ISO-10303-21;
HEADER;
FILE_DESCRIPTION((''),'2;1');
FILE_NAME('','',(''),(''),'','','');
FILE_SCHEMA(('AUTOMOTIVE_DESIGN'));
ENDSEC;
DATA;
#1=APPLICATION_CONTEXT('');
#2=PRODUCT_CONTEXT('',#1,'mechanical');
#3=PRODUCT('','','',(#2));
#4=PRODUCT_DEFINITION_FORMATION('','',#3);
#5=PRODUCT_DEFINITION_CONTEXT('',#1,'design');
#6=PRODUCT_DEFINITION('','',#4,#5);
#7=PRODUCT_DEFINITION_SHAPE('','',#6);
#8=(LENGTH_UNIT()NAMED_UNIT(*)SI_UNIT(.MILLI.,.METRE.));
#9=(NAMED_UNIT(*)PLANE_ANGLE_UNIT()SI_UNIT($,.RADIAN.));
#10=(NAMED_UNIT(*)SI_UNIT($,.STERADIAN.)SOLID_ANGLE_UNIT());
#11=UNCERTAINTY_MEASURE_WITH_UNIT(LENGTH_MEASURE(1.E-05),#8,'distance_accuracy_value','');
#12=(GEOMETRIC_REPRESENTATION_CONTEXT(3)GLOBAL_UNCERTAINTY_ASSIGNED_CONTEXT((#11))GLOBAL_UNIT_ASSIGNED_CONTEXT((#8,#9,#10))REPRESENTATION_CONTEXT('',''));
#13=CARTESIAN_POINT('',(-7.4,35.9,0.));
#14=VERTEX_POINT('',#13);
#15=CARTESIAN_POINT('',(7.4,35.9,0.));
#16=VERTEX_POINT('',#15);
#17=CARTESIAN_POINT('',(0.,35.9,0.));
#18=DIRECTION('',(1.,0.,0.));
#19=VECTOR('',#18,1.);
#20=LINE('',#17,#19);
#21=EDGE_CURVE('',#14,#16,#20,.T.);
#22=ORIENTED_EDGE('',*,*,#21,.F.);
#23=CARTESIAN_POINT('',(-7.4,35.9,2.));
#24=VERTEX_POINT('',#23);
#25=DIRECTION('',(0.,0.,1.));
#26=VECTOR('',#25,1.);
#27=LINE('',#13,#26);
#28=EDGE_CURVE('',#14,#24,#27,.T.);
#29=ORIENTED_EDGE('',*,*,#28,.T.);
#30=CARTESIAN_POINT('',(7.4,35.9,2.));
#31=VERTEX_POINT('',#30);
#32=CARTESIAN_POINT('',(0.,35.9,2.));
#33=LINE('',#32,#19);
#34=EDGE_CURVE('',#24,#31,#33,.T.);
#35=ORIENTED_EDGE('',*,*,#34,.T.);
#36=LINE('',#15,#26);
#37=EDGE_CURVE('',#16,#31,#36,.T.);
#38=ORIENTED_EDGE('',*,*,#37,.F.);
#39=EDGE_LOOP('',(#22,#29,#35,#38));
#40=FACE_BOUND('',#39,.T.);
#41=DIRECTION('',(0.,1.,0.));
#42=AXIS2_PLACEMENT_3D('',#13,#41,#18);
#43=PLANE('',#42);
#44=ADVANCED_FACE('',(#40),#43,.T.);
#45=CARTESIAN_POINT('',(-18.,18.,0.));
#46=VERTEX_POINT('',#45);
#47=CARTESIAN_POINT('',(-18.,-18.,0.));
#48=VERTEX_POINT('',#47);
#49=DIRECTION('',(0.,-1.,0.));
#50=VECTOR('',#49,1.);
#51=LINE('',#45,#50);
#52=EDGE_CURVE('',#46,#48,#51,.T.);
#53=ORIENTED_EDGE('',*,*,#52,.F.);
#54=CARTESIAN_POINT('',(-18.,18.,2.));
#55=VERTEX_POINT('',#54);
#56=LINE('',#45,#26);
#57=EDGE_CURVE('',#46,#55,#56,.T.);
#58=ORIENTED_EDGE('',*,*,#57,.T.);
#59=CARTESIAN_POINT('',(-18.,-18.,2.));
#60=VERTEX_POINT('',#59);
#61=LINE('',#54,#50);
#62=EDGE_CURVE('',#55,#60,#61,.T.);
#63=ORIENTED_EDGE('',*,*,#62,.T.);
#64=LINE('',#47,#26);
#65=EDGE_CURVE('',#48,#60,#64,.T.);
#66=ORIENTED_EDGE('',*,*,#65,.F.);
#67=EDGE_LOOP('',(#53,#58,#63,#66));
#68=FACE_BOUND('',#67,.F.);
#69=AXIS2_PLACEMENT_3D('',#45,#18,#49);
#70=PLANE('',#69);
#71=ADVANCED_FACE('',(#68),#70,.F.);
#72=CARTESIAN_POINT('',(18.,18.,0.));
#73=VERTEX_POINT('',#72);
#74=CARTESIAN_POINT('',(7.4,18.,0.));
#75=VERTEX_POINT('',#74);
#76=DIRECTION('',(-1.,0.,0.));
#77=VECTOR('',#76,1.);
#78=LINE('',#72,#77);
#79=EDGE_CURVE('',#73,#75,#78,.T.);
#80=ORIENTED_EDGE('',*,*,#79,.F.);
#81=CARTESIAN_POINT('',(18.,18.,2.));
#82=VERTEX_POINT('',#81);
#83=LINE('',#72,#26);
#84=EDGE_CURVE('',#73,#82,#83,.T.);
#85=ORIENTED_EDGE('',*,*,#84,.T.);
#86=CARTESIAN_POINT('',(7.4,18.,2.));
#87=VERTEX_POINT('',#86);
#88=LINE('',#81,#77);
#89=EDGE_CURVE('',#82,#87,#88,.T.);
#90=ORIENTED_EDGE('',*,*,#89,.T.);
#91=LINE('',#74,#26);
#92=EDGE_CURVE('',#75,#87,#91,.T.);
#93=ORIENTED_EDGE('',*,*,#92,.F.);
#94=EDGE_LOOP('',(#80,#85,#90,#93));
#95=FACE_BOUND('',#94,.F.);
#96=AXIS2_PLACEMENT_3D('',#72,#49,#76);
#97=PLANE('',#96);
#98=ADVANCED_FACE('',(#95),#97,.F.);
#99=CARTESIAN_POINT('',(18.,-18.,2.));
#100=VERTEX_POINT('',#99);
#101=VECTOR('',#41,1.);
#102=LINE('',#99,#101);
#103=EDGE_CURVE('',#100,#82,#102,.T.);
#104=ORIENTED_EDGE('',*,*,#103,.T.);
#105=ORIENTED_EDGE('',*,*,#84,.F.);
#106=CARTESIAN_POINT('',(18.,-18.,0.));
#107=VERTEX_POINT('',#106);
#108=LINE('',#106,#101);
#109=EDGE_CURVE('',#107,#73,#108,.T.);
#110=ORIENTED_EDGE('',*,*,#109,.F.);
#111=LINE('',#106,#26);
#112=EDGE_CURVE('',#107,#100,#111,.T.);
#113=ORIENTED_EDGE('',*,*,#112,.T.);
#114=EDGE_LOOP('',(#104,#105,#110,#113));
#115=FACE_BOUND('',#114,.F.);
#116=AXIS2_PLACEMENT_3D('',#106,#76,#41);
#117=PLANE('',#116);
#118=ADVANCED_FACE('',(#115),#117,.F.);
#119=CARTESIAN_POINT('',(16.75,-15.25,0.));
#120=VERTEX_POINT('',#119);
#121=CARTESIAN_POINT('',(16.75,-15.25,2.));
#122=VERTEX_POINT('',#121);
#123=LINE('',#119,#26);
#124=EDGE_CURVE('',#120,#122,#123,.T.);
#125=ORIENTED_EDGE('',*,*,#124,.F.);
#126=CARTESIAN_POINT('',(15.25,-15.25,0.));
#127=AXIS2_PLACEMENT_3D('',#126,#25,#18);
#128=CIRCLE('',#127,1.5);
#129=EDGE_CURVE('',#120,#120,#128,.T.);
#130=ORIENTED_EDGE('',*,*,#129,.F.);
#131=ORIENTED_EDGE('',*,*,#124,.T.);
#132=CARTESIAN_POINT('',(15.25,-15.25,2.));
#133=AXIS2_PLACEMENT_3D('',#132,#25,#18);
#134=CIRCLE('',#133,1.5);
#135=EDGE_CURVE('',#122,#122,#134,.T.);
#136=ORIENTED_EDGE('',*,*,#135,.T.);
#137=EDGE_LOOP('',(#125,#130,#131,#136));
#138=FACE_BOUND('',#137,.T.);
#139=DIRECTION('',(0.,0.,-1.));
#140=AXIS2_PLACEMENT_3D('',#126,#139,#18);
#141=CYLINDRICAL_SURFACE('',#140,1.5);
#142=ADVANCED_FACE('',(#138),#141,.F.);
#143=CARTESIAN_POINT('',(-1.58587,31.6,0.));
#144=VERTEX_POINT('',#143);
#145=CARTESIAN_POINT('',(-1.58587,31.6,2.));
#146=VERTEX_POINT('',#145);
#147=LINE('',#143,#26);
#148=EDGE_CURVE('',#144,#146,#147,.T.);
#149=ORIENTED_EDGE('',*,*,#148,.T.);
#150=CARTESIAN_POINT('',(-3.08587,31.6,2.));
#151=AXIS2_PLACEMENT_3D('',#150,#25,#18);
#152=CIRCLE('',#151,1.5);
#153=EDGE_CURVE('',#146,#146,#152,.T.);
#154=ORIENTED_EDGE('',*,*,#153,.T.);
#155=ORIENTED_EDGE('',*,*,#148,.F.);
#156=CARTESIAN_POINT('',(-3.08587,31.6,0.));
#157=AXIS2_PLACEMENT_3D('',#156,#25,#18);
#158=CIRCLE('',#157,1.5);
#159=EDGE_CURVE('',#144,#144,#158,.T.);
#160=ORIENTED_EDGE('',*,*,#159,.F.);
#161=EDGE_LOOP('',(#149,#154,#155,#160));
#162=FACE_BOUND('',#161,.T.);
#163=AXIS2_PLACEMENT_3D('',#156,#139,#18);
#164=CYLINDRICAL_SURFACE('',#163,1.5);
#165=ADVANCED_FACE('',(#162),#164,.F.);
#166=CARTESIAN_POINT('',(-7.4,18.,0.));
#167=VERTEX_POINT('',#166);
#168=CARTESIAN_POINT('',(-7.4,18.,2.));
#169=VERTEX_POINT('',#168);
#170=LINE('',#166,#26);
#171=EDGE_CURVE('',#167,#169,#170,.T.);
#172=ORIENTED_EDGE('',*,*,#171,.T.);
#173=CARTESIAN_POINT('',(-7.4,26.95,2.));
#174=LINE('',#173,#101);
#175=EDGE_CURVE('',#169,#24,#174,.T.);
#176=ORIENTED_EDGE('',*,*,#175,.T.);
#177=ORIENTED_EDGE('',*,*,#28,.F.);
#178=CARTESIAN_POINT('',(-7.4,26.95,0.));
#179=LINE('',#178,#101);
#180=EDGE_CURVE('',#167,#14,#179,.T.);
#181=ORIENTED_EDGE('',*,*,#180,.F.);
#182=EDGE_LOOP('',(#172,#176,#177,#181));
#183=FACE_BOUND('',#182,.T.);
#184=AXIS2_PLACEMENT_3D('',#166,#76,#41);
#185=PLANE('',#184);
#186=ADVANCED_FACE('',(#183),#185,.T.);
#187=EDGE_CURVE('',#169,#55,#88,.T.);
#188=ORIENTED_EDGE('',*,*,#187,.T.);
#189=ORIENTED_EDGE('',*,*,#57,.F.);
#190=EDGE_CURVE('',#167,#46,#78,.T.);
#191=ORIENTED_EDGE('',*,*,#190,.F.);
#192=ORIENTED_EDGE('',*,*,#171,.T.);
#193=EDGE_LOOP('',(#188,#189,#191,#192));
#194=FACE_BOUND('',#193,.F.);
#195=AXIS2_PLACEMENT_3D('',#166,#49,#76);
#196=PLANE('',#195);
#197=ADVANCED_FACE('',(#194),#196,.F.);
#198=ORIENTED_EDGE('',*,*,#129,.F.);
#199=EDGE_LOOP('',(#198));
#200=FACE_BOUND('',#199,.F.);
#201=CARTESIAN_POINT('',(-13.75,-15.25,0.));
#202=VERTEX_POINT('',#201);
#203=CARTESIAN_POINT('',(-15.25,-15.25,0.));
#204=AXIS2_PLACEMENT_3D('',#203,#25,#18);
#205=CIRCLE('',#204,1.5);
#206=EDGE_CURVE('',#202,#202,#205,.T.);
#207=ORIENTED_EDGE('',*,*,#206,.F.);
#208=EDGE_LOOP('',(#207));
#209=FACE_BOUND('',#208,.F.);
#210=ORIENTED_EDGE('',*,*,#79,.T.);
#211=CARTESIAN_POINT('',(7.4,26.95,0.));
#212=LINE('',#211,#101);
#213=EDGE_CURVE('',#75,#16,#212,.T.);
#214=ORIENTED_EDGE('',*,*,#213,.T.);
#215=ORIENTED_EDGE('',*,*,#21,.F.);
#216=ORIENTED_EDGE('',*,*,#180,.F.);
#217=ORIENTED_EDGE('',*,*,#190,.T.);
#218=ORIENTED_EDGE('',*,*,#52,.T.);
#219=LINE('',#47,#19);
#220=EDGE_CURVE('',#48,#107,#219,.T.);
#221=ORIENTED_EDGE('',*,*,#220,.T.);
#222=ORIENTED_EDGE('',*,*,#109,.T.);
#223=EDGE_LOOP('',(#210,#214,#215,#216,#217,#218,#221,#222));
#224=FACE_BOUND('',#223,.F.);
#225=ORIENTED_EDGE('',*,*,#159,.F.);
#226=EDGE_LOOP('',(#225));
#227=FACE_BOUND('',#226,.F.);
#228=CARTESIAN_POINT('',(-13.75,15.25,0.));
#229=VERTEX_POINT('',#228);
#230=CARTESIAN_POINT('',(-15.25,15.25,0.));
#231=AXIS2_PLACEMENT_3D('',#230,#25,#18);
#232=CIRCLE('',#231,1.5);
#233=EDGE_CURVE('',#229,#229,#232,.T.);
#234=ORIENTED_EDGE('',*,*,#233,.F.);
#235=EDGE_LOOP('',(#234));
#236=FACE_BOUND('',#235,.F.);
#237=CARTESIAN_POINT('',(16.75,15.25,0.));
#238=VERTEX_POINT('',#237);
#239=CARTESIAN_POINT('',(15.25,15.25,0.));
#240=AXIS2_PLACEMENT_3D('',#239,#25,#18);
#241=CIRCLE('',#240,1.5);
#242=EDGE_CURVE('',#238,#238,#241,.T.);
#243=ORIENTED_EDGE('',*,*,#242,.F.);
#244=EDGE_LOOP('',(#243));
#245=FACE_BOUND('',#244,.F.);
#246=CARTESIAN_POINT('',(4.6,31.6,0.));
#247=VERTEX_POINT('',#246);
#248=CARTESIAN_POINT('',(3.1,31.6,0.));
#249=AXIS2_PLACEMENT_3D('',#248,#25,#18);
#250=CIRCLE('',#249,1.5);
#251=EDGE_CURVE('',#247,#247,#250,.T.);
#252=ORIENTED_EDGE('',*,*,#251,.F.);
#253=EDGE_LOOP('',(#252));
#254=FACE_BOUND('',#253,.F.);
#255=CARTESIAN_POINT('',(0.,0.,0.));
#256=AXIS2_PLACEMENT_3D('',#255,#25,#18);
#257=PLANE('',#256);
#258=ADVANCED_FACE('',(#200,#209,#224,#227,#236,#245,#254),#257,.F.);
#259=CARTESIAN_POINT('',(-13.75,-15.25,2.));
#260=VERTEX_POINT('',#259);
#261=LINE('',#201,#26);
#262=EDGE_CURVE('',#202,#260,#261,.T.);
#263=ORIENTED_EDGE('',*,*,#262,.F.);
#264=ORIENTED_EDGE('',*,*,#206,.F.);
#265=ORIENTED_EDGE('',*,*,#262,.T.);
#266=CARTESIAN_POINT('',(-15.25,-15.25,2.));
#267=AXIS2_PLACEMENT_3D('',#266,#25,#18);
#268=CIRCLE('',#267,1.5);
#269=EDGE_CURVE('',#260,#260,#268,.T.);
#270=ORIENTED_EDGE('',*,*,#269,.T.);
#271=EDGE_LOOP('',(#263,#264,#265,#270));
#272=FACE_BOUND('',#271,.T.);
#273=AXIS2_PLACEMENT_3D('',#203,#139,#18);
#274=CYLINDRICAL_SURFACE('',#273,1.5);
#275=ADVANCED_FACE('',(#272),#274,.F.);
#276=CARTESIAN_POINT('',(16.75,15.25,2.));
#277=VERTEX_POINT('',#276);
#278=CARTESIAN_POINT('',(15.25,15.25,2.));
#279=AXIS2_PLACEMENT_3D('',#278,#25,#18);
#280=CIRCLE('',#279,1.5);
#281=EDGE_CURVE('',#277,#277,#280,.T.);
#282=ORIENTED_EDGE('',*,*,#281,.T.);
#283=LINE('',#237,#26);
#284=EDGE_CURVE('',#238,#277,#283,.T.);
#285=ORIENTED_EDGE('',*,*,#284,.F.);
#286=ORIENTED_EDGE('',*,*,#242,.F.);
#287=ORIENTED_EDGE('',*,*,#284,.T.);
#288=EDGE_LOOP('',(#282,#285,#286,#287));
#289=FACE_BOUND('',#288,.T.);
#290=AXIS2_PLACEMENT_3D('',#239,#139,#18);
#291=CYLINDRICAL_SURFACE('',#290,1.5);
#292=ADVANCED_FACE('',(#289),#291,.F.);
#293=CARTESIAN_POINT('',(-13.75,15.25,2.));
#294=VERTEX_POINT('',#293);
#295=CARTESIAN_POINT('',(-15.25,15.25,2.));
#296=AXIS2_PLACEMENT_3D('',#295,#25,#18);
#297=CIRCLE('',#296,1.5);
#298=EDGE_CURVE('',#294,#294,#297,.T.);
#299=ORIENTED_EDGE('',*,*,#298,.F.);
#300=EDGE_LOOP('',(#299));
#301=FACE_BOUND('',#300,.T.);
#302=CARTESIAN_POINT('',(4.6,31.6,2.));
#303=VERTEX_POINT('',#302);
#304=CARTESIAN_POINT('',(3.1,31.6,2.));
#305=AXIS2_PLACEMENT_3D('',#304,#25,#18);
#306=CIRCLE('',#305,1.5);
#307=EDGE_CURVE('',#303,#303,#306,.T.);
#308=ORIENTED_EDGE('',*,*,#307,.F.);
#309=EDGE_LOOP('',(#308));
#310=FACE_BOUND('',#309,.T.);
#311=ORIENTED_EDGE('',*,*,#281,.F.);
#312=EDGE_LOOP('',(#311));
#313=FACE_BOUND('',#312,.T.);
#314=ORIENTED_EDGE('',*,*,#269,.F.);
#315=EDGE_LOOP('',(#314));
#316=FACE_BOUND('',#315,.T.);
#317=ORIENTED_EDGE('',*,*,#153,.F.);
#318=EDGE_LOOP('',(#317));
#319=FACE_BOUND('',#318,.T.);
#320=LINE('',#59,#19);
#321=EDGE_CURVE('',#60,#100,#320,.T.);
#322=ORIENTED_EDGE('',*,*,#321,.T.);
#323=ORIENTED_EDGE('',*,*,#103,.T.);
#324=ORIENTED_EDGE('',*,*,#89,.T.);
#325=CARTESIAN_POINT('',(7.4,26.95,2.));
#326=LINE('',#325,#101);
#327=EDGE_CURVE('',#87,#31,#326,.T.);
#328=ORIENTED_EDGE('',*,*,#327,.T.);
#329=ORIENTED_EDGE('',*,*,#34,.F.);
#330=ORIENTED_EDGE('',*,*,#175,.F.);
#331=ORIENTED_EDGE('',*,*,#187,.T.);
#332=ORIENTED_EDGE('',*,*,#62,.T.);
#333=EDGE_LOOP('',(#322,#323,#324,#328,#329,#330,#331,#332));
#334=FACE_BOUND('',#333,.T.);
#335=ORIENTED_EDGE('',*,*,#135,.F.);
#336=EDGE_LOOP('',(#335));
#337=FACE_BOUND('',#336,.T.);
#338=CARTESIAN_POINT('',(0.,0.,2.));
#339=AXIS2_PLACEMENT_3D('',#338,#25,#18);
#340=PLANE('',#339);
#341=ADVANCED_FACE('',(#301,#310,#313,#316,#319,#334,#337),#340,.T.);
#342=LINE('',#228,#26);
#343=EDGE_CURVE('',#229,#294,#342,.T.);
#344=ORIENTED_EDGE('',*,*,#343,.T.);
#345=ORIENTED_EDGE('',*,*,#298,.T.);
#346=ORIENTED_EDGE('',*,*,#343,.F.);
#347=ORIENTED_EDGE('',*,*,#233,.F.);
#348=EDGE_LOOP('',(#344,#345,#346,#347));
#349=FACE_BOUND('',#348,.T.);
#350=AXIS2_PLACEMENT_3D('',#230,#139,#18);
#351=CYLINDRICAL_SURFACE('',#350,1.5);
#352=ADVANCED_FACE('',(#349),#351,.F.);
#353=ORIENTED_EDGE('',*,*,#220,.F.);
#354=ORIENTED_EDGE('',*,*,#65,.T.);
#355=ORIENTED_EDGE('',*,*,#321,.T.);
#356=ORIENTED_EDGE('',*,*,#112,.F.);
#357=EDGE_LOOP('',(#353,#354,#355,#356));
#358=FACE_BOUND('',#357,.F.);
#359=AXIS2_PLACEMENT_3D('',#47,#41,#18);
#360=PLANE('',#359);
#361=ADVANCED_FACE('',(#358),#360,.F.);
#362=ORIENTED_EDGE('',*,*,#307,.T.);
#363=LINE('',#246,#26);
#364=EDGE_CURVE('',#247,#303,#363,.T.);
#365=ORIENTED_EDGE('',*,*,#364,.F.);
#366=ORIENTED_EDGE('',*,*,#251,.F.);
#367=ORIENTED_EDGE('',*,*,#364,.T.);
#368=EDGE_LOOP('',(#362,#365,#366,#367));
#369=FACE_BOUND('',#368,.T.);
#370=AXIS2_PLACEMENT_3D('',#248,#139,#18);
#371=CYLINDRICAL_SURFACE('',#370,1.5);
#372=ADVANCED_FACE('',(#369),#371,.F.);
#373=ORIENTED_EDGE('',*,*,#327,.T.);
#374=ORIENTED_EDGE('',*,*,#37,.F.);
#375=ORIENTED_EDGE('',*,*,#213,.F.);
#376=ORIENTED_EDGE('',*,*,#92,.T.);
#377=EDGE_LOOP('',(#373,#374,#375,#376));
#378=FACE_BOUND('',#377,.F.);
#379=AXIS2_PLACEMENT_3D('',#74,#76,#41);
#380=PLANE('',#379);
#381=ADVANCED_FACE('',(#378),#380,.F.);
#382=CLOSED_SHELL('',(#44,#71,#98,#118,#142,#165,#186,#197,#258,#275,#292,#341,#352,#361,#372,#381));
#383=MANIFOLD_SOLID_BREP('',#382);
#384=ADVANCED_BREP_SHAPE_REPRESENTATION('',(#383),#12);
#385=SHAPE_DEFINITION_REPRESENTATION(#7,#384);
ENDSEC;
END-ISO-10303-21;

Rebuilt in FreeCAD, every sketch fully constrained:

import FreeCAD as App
import Part
import Sketcher

doc = App.newDocument("Part")
params = doc.addObject("Spreadsheet::Sheet", "Params")
for row, (alias, value) in enumerate([
    ("sketch1_diameter", "3 mm"),
    ("sketch1_width", "36 mm"),
    ("sketch1_width2", "10.6 mm"),
    ("sketch1_height", "17.9 mm"),
    ("pad1_length", "2 mm"),
], start=1):
    params.set(f"A{row}", alias)
    params.set(f"B{row}", "=" + value)
    params.setAlias(f"B{row}", alias)

body = doc.addObject("PartDesign::Body", "Body")

# Sketch on XY plane
sketch1 = body.newObject("Sketcher::SketchObject", "Sketch")
sketch1.AttachmentSupport = (doc.getObject("XY_Plane"), [""])
sketch1.MapMode = "FlatFace"
sketch1.addGeometry(Part.LineSegment(App.Vector(-18, 18, 0), App.Vector(-18, -18, 0)), False)
sketch1.addGeometry(Part.LineSegment(App.Vector(-18, -18, 0), App.Vector(18, -18, 0)), False)
sketch1.addGeometry(Part.LineSegment(App.Vector(18, -18, 0), App.Vector(18, 18, 0)), False)
sketch1.addGeometry(Part.LineSegment(App.Vector(18, 18, 0), App.Vector(7.4, 18, 0)), False)
sketch1.addGeometry(Part.LineSegment(App.Vector(7.4, 18, 0), App.Vector(7.4, 35.9, 0)), False)
sketch1.addGeometry(Part.LineSegment(App.Vector(7.4, 35.9, 0), App.Vector(-7.4, 35.9, 0)), False)
sketch1.addGeometry(Part.LineSegment(App.Vector(-7.4, 35.9, 0), App.Vector(-7.4, 18, 0)), False)
sketch1.addGeometry(Part.LineSegment(App.Vector(-7.4, 18, 0), App.Vector(-18, 18, 0)), False)
sketch1.addGeometry(Part.Circle(App.Vector(-15.2, -15.2, 0), App.Vector(0, 0, 1), 1.5), False)
sketch1.addGeometry(Part.Circle(App.Vector(15.2, -15.2, 0), App.Vector(0, 0, 1), 1.5), False)
sketch1.addGeometry(Part.Circle(App.Vector(-15.2, 15.2, 0), App.Vector(0, 0, 1), 1.5), False)
sketch1.addGeometry(Part.Circle(App.Vector(-3.1, 31.6, 0), App.Vector(0, 0, 1), 1.5), False)
sketch1.addGeometry(Part.Circle(App.Vector(15.2, 15.2, 0), App.Vector(0, 0, 1), 1.5), False)
sketch1.addGeometry(Part.Circle(App.Vector(3.1, 31.6, 0), App.Vector(0, 0, 1), 1.5), False)
sketch1.addConstraint(Sketcher.Constraint("Coincident", 0, 2, 1, 1))
sketch1.addConstraint(Sketcher.Constraint("Coincident", 1, 2, 2, 1))
sketch1.addConstraint(Sketcher.Constraint("Coincident", 2, 2, 3, 1))
sketch1.addConstraint(Sketcher.Constraint("Coincident", 3, 2, 4, 1))
sketch1.addConstraint(Sketcher.Constraint("Coincident", 4, 2, 5, 1))
sketch1.addConstraint(Sketcher.Constraint("Coincident", 5, 2, 6, 1))
sketch1.addConstraint(Sketcher.Constraint("Coincident", 6, 2, 7, 1))
sketch1.addConstraint(Sketcher.Constraint("Coincident", 7, 2, 0, 1))
sketch1.addConstraint(Sketcher.Constraint("Vertical", 0))
sketch1.addConstraint(Sketcher.Constraint("Horizontal", 1))
sketch1.addConstraint(Sketcher.Constraint("Vertical", 2))
sketch1.addConstraint(Sketcher.Constraint("Horizontal", 3))
sketch1.addConstraint(Sketcher.Constraint("Vertical", 4))
sketch1.addConstraint(Sketcher.Constraint("Horizontal", 5))
sketch1.addConstraint(Sketcher.Constraint("Vertical", 6))
sketch1.addConstraint(Sketcher.Constraint("Horizontal", 7))
sketch1.addConstraint(Sketcher.Constraint("Equal", 8, 9))
sketch1.addConstraint(Sketcher.Constraint("Equal", 9, 10))
sketch1.addConstraint(Sketcher.Constraint("Equal", 10, 11))
sketch1.addConstraint(Sketcher.Constraint("Equal", 11, 12))
sketch1.addConstraint(Sketcher.Constraint("Equal", 12, 13))
sketch1.addConstraint(Sketcher.Constraint("Symmetric", 9, 3, 10, 3, -1, 1))
sketch1.addConstraint(Sketcher.Constraint("Symmetric", 8, 3, 12, 3, -1, 1))
sketch1.addConstraint(Sketcher.Constraint("Symmetric", 0, 2, 2, 2, -1, 1))
sketch1.addConstraint(Sketcher.Constraint("Symmetric", 8, 3, 9, 3, -2))
sketch1.addConstraint(Sketcher.Constraint("Symmetric", 3, 2, 6, 2, -2))
sketch1.addConstraint(Sketcher.Constraint("Horizontal", 11, 3, 13, 3))
sketch1.addConstraint(Sketcher.Constraint("Equal", 1, 0))
sketch1.addConstraint(Sketcher.Constraint("Diameter", 8, 3.0))
sketch1.addConstraint(Sketcher.Constraint("DistanceX", 1, 1, 1, 2, 36.0))
sketch1.addConstraint(Sketcher.Constraint("DistanceX", 3, 2, 3, 1, 10.6))
sketch1.addConstraint(Sketcher.Constraint("DistanceY", 4, 1, 4, 2, 17.9))
sketch1.addConstraint(Sketcher.Constraint("DistanceY", -1, 1, 11, 3, 31.6))
sketch1.addConstraint(Sketcher.Constraint("DistanceX", -1, 1, 13, 3, 3.1))
sketch1.addConstraint(Sketcher.Constraint("DistanceX", 8, 3, 9, 3, 30.5))
sketch1.addConstraint(Sketcher.Constraint("DistanceY", 8, 3, 10, 3, 30.5))
sketch1.addConstraint(Sketcher.Constraint("DistanceX", 11, 3, -1, 1, 3.08587))
sketch1.setExpression("Constraints[28]", "Params.sketch1_diameter")
sketch1.setExpression("Constraints[29]", "Params.sketch1_width")
sketch1.setExpression("Constraints[30]", "Params.sketch1_width2")
sketch1.setExpression("Constraints[31]", "Params.sketch1_height")
pad1 = body.newObject("PartDesign::Pad", "Pad")
pad1.Profile = sketch1
pad1.setExpression("Length", "Params.pad1_length")

doc.recompute()
